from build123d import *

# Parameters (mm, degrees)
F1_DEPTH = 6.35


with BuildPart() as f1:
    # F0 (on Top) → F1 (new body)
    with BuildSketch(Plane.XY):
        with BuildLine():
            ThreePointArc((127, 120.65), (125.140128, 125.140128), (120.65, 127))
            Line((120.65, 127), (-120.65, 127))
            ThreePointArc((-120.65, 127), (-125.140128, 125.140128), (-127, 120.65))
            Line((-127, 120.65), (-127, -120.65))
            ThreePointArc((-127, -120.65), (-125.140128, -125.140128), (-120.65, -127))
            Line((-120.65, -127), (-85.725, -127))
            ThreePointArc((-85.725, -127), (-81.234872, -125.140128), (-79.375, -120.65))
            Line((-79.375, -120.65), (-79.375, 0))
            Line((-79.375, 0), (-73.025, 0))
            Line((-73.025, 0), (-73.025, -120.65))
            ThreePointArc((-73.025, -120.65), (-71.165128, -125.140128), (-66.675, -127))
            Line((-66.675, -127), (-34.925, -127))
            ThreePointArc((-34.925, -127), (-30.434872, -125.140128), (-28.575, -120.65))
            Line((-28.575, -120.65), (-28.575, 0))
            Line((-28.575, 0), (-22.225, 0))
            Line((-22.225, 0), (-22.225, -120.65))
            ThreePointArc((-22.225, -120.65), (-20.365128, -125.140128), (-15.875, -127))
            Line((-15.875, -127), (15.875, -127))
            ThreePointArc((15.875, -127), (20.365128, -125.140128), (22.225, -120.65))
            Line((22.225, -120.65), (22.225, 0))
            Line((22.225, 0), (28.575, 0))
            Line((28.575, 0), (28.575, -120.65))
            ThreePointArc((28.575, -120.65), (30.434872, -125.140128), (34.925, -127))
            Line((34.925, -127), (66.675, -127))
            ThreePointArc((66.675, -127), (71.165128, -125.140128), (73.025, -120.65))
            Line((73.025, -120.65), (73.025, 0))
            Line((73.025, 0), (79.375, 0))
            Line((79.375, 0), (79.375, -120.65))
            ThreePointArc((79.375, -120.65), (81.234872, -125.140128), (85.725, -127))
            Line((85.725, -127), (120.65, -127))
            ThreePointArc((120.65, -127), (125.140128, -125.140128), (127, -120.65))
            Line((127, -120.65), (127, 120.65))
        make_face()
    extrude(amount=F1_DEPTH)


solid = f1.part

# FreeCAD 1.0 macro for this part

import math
import FreeCAD as App
import Part
import Sketcher
Q = App.Units.Quantity

doc = App.newDocument("Part")
body = doc.addObject("PartDesign::Body", "Body")

sketch1 = body.newObject("Sketcher::SketchObject", "Sketch")
sketch1.AttachmentSupport = (doc.getObject("XY_Plane"), [""])
sketch1.MapMode = "FlatFace"
sketch1.addGeometry([
    Part.ArcOfCircle(Part.Circle(App.Vector(121, 121, 0), App.Vector(0, 0, 1), 6), math.radians(0), math.radians(90)),
    Part.LineSegment(App.Vector(121, 127, 0), App.Vector(-121, 127, 0)),
    Part.ArcOfCircle(Part.Circle(App.Vector(-121, 121, 0), App.Vector(0, 0, 1), 6), math.radians(90), math.radians(180)),
    Part.LineSegment(App.Vector(-127, 121, 0), App.Vector(-127, -121, 0)),
    Part.ArcOfCircle(Part.Circle(App.Vector(-121, -121, 0), App.Vector(0, 0, 1), 6), math.radians(-180), math.radians(-90)),
    Part.LineSegment(App.Vector(-121, -127, 0), App.Vector(-86, -127, 0)),
    Part.ArcOfCircle(Part.Circle(App.Vector(-86, -121, 0), App.Vector(0, 0, 1), 6), math.radians(-90), math.radians(0)),
    Part.LineSegment(App.Vector(-79, -121, 0), App.Vector(-79, 0, 0)),
    Part.LineSegment(App.Vector(-79, 0, 0), App.Vector(-73, 0, 0)),
    Part.LineSegment(App.Vector(-73, 0, 0), App.Vector(-73, -121, 0)),
    Part.ArcOfCircle(Part.Circle(App.Vector(-67, -121, 0), App.Vector(0, 0, 1), 6), math.radians(-180), math.radians(-90)),
    Part.LineSegment(App.Vector(-67, -127, 0), App.Vector(-35, -127, 0)),
    Part.ArcOfCircle(Part.Circle(App.Vector(-35, -121, 0), App.Vector(0, 0, 1), 6), math.radians(-90), math.radians(0)),
    Part.LineSegment(App.Vector(-29, -121, 0), App.Vector(-29, 0, 0)),
    Part.LineSegment(App.Vector(-29, 0, 0), App.Vector(-22, 0, 0)),
    Part.LineSegment(App.Vector(-22, 0, 0), App.Vector(-22, -121, 0)),
    Part.ArcOfCircle(Part.Circle(App.Vector(-16, -121, 0), App.Vector(0, 0, 1), 6), math.radians(-180), math.radians(-90)),
    Part.LineSegment(App.Vector(-16, -127, 0), App.Vector(16, -127, 0)),
    Part.ArcOfCircle(Part.Circle(App.Vector(16, -121, 0), App.Vector(0, 0, 1), 6), math.radians(-90), math.radians(0)),
    Part.LineSegment(App.Vector(22, -121, 0), App.Vector(22, 0, 0)),
    Part.LineSegment(App.Vector(22, 0, 0), App.Vector(29, 0, 0)),
    Part.LineSegment(App.Vector(29, 0, 0), App.Vector(29, -121, 0)),
    Part.ArcOfCircle(Part.Circle(App.Vector(35, -121, 0), App.Vector(0, 0, 1), 6), math.radians(-180), math.radians(-90)),
    Part.LineSegment(App.Vector(35, -127, 0), App.Vector(67, -127, 0)),
    Part.ArcOfCircle(Part.Circle(App.Vector(67, -121, 0), App.Vector(0, 0, 1), 6), math.radians(-90), math.radians(0)),
    Part.LineSegment(App.Vector(73, -121, 0), App.Vector(73, 0, 0)),
    Part.LineSegment(App.Vector(73, 0, 0), App.Vector(79, 0, 0)),
    Part.LineSegment(App.Vector(79, 0, 0), App.Vector(79, -121, 0)),
    Part.ArcOfCircle(Part.Circle(App.Vector(86, -121, 0), App.Vector(0, 0, 1), 6), math.radians(-180), math.radians(-90)),
    Part.LineSegment(App.Vector(86, -127, 0), App.Vector(121, -127, 0)),
    Part.ArcOfCircle(Part.Circle(App.Vector(121, -121, 0), App.Vector(0, 0, 1), 6), math.radians(-90), math.radians(0)),
    Part.LineSegment(App.Vector(127, -121, 0), App.Vector(127, 121, 0)),
], False)
sketch1.addConstraint([
    Sketcher.Constraint("Tangent", 0, 2, 1, 1),
    Sketcher.Constraint("Tangent", 1, 2, 2, 1),
    Sketcher.Constraint("Tangent", 2, 2, 3, 1),
    Sketcher.Constraint("Tangent", 3, 2, 4, 1),
    Sketcher.Constraint("Tangent", 4, 2, 5, 1),
    Sketcher.Constraint("Tangent", 5, 2, 6, 1),
    Sketcher.Constraint("Tangent", 6, 2, 7, 1),
    Sketcher.Constraint("Coincident", 7, 2, 8, 1),
    Sketcher.Constraint("Coincident", 8, 2, 9, 1),
    Sketcher.Constraint("Tangent", 9, 2, 10, 1),
    Sketcher.Constraint("Tangent", 10, 2, 11, 1),
    Sketcher.Constraint("Tangent", 11, 2, 12, 1),
    Sketcher.Constraint("Tangent", 12, 2, 13, 1),
    Sketcher.Constraint("Coincident", 13, 2, 14, 1),
    Sketcher.Constraint("Coincident", 14, 2, 15, 1),
    Sketcher.Constraint("Tangent", 15, 2, 16, 1),
    Sketcher.Constraint("Tangent", 16, 2, 17, 1),
    Sketcher.Constraint("Tangent", 17, 2, 18, 1),
    Sketcher.Constraint("Tangent", 18, 2, 19, 1),
    Sketcher.Constraint("Coincident", 19, 2, 20, 1),
    Sketcher.Constraint("Coincident", 20, 2, 21, 1),
    Sketcher.Constraint("Tangent", 21, 2, 22, 1),
    Sketcher.Constraint("Tangent", 22, 2, 23, 1),
    Sketcher.Constraint("Tangent", 23, 2, 24, 1),
    Sketcher.Constraint("Tangent", 24, 2, 25, 1),
    Sketcher.Constraint("Coincident", 25, 2, 26, 1),
    Sketcher.Constraint("Coincident", 26, 2, 27, 1),
    Sketcher.Constraint("Tangent", 27, 2, 28, 1),
    Sketcher.Constraint("Tangent", 28, 2, 29, 1),
    Sketcher.Constraint("Tangent", 29, 2, 30, 1),
    Sketcher.Constraint("Tangent", 30, 2, 31, 1),
    Sketcher.Constraint("Tangent", 31, 2, 0, 1),
    Sketcher.Constraint("Horizontal", 1),
    Sketcher.Constraint("Vertical", 3),
    Sketcher.Constraint("Horizontal", 5),
    Sketcher.Constraint("Vertical", 7),
    Sketcher.Constraint("Horizontal", 8),
    Sketcher.Constraint("Vertical", 9),
    Sketcher.Constraint("Horizontal", 11),
    Sketcher.Constraint("Vertical", 13),
    Sketcher.Constraint("Horizontal", 14),
    Sketcher.Constraint("Vertical", 15),
    Sketcher.Constraint("Horizontal", 17),
    Sketcher.Constraint("Vertical", 19),
    Sketcher.Constraint("Horizontal", 20),
    Sketcher.Constraint("Vertical", 21),
    Sketcher.Constraint("Horizontal", 23),
    Sketcher.Constraint("Vertical", 25),
    Sketcher.Constraint("Horizontal", 26),
    Sketcher.Constraint("Vertical", 27),
    Sketcher.Constraint("Horizontal", 29),
    Sketcher.Constraint("Vertical", 31),
    Sketcher.Constraint("Equal", 0, 2),
    Sketcher.Constraint("Equal", 2, 4),
    Sketcher.Constraint("Equal", 4, 6),
    Sketcher.Constraint("Equal", 6, 10),
    Sketcher.Constraint("Equal", 10, 12),
    Sketcher.Constraint("Equal", 12, 16),
    Sketcher.Constraint("Equal", 16, 18),
    Sketcher.Constraint("Equal", 18, 22),
    Sketcher.Constraint("Equal", 22, 24),
    Sketcher.Constraint("Equal", 24, 28),
    Sketcher.Constraint("Equal", 28, 30),
    Sketcher.Constraint("Symmetric", 0, 3, 4, 3, -1, 1),
    Sketcher.Constraint("Symmetric", 14, 2, 19, 2, -1, 1),
    Sketcher.Constraint("Symmetric", 8, 2, 25, 2, -1, 1),
    Sketcher.Constraint("Symmetric", 12, 3, 22, 3, -2),
    Sketcher.Constraint("Symmetric", 6, 3, 28, 3, -2),
    Sketcher.Constraint("PointOnObject", 7, 2, -1),
    Sketcher.Constraint("PointOnObject", 13, 2, -1),
    Sketcher.Constraint("Horizontal", 6, 3, 10, 3),
    Sketcher.Constraint("Horizontal", 12, 3, 16, 3),
    Sketcher.Constraint("Equal", 8, 14),
    Sketcher.Constraint("Equal", 11, 17),
    Sketcher.Constraint("Equal", 1, 3),
    Sketcher.Constraint("Radius", 0, Q("0.25 in")),
    Sketcher.Constraint("DistanceX", 1, 2, 1, 1, Q("9.5 in")),
    Sketcher.Constraint("DistanceX", 6, 3, 12, 3, Q("2 in")),
    Sketcher.Constraint("DistanceX", 8, 1, 8, 2, Q("0.25 in")),
])
pad1 = body.newObject("PartDesign::Pad", "Pad")
pad1.Profile = sketch1
pad1.Length = Q("0.25 in")

doc.recompute()
